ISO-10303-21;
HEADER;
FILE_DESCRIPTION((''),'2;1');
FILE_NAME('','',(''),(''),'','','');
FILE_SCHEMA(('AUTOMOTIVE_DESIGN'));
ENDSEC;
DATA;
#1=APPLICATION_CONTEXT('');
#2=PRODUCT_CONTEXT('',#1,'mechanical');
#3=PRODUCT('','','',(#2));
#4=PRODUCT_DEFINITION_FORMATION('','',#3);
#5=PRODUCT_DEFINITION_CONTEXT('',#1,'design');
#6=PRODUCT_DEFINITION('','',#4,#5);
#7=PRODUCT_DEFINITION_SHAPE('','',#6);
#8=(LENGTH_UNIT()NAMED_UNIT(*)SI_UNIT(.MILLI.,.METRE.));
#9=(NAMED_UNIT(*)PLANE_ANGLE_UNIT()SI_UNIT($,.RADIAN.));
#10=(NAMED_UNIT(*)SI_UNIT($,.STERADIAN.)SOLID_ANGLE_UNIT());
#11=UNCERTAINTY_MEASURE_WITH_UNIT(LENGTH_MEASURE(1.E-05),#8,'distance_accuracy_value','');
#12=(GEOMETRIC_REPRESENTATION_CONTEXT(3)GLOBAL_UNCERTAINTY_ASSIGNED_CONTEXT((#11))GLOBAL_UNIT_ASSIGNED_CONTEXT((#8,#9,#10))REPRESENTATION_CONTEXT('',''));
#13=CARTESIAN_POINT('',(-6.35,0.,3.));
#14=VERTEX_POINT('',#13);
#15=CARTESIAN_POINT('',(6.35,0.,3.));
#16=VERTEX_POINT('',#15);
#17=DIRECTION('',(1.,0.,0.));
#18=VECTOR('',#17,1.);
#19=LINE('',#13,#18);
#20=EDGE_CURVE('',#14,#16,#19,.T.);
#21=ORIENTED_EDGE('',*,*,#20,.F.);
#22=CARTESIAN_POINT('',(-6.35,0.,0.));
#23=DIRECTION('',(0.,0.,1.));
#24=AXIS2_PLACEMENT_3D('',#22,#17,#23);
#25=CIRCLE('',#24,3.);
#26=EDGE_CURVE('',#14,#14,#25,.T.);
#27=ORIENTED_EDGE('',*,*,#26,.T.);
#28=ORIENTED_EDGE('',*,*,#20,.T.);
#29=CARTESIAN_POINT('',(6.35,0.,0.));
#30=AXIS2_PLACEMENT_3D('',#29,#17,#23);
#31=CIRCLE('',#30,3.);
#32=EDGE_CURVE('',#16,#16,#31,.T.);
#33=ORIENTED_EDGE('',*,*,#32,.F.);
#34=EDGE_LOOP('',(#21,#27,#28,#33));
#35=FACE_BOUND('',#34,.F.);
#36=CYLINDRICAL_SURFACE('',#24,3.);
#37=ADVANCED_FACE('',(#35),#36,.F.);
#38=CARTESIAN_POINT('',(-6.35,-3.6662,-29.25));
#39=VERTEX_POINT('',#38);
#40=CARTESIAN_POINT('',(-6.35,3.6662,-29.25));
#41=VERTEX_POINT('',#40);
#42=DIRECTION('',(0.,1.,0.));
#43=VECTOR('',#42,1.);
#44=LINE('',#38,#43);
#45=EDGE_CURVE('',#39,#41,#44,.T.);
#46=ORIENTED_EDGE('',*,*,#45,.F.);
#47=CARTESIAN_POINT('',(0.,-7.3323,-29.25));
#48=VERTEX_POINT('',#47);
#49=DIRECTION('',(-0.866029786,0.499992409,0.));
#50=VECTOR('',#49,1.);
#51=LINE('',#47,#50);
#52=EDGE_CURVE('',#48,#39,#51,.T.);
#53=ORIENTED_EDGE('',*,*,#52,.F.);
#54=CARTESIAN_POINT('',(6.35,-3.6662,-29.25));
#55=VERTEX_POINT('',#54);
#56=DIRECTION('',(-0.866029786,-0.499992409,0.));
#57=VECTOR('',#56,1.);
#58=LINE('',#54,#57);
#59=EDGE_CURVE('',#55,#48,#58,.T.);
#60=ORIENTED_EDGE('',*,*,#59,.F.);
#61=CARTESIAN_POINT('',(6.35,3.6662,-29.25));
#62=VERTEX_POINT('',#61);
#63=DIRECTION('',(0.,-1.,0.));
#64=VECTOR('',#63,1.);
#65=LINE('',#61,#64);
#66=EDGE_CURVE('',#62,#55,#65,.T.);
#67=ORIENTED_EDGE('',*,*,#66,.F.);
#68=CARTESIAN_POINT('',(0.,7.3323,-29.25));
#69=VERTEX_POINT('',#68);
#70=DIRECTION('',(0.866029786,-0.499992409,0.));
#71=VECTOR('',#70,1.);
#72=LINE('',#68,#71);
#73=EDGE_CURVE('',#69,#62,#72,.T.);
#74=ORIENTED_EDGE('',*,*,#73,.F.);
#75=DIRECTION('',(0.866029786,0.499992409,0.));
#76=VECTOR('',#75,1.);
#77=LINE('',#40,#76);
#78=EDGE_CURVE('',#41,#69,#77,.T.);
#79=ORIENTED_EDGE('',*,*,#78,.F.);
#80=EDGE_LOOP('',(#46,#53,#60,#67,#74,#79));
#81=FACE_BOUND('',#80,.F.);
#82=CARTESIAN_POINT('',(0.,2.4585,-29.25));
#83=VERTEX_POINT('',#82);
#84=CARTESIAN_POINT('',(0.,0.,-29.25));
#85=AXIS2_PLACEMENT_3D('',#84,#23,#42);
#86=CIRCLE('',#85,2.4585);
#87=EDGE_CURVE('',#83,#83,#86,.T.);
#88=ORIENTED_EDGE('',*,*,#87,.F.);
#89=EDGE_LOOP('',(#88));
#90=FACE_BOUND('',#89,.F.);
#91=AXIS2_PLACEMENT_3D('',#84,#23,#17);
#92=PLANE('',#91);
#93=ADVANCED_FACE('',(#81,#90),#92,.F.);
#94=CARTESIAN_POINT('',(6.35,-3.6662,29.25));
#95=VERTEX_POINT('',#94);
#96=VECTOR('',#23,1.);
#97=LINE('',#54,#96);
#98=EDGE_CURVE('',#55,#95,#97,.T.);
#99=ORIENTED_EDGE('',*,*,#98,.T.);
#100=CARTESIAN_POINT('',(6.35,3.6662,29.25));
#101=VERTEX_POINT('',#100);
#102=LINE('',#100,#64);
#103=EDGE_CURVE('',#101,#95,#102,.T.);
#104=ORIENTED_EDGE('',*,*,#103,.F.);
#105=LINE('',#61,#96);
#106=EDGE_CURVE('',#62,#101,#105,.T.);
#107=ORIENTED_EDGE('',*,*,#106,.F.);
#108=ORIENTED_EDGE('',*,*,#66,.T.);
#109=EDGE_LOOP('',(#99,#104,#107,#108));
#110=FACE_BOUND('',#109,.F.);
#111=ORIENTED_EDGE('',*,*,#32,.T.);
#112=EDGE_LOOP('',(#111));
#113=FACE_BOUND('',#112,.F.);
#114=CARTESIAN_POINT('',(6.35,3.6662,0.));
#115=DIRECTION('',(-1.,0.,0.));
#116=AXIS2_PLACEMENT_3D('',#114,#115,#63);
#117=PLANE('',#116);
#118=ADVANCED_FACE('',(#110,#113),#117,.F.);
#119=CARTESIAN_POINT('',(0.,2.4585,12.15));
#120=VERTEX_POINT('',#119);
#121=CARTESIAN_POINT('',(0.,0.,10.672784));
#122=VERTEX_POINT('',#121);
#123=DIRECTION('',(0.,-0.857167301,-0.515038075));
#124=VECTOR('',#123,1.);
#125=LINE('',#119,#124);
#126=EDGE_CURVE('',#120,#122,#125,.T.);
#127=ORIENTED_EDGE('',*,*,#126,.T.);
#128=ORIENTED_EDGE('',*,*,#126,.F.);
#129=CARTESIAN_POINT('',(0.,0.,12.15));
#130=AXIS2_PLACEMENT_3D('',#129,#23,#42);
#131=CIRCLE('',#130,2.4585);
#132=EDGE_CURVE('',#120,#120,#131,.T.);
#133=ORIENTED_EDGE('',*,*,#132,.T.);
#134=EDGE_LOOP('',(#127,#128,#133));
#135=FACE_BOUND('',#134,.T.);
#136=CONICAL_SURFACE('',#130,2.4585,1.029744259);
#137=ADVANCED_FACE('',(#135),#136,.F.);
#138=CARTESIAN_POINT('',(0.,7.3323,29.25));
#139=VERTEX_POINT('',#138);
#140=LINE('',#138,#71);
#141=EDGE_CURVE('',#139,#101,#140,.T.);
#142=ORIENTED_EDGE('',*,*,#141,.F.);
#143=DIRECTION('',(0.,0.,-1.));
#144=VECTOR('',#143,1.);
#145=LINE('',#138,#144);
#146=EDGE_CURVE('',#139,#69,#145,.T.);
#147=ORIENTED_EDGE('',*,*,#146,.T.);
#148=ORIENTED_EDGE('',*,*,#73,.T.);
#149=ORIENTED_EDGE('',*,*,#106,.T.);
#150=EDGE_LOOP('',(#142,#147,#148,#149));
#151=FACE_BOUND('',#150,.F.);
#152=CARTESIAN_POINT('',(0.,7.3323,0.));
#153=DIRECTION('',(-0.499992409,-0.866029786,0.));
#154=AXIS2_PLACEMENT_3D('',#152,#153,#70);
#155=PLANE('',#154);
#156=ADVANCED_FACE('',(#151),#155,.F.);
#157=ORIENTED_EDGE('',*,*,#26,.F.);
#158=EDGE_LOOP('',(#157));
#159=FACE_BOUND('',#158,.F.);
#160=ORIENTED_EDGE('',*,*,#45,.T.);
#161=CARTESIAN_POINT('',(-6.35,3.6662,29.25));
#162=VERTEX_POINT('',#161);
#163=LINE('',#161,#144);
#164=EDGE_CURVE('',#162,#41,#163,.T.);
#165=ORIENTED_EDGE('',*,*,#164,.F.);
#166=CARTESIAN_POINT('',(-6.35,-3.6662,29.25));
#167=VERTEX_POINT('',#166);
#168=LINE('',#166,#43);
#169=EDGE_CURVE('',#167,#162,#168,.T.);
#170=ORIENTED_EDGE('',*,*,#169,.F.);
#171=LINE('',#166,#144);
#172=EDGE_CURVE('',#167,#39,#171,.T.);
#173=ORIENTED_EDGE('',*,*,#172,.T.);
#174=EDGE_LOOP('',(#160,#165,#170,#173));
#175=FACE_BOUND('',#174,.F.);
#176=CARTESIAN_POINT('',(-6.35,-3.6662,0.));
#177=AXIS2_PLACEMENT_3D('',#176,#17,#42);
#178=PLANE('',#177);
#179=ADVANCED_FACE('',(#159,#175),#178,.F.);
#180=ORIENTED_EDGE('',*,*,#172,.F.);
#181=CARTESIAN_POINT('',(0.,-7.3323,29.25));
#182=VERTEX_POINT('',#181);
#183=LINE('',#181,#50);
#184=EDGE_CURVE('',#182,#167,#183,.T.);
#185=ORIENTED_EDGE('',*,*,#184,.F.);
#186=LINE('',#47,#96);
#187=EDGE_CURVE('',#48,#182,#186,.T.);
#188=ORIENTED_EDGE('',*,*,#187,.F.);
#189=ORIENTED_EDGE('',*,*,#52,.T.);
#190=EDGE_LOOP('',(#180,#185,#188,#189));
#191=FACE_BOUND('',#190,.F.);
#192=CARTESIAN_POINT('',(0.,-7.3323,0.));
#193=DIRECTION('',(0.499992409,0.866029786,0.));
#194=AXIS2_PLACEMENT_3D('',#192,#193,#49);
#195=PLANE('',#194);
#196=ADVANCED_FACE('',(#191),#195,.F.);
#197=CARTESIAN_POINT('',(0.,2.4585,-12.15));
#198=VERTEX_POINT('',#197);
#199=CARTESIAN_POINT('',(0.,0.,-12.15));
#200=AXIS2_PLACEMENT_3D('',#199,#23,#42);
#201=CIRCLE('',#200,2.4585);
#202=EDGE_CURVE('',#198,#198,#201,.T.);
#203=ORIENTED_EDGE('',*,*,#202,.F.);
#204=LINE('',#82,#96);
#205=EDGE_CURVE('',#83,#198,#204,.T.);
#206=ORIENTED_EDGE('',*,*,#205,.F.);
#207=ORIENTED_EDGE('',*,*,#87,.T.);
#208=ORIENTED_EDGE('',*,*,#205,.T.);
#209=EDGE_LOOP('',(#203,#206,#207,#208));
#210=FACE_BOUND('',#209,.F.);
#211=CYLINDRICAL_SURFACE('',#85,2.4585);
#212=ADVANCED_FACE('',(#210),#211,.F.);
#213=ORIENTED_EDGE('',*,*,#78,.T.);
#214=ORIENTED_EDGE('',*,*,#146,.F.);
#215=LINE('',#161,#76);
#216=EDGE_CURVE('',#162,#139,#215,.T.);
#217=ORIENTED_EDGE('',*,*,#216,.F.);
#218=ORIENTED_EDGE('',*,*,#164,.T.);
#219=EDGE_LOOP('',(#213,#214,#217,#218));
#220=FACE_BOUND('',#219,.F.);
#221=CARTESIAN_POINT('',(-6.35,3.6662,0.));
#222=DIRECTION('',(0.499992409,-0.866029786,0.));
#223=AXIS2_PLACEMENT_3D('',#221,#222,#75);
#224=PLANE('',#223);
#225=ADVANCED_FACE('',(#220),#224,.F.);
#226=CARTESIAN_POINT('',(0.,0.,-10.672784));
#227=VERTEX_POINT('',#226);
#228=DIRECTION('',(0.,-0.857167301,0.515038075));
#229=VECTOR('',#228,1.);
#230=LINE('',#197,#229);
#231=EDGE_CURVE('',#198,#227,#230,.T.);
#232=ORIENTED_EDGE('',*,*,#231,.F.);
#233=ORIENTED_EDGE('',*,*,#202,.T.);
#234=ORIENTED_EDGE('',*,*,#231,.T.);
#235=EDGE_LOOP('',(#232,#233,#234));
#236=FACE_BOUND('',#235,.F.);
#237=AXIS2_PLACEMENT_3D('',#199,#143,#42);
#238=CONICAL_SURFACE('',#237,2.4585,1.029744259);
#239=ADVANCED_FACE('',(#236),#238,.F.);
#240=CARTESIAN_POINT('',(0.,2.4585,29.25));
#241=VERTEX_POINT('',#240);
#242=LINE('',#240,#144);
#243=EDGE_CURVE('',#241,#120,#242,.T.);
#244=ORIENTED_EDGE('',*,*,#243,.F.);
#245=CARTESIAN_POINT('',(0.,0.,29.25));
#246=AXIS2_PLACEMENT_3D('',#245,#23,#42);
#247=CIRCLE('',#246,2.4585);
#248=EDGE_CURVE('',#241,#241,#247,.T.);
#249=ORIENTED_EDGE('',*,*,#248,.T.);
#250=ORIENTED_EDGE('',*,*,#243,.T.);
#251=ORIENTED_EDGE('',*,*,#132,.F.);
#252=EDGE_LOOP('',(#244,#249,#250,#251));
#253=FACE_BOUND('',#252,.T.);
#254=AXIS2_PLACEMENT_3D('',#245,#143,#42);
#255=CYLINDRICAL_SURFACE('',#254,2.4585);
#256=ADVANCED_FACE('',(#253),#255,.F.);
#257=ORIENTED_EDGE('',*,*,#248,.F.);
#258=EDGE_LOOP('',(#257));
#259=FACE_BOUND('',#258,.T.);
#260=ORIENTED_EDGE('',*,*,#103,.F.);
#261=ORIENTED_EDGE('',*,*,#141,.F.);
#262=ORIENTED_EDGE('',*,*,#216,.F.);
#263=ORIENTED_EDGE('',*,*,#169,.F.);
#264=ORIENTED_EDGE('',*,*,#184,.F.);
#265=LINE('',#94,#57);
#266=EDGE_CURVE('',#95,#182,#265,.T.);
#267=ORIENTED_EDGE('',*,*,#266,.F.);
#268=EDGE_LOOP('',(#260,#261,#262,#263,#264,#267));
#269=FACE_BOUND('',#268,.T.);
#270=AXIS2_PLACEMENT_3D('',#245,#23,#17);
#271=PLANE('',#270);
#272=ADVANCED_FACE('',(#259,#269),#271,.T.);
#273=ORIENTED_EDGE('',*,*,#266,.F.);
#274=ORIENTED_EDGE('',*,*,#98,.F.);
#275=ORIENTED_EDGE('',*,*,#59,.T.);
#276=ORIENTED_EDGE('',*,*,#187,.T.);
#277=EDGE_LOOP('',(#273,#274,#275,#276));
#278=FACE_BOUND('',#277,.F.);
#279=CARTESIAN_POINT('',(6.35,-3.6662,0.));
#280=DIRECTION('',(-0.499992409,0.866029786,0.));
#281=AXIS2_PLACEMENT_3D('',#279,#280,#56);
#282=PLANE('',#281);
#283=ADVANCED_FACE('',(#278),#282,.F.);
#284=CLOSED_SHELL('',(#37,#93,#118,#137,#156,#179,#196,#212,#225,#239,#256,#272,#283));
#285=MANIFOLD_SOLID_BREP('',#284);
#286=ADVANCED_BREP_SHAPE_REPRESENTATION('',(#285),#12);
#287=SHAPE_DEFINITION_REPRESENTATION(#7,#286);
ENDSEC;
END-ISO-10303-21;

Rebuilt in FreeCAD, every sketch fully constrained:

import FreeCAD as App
import Part
import Sketcher
from FreeCAD import Vector
Q = App.Units.Quantity


def add_polygon(sketch, points):
    """Adds a closed chain of lines whose ends are joined by coincident constraints."""
    first, n = sketch.GeometryCount, len(points)
    for a, b in zip(points, points[1:] + points[:1]):
        sketch.addGeometry(Part.LineSegment(App.Vector(*a, 0), App.Vector(*b, 0)), False)
    for i in range(n):
        sketch.addConstraint(Sketcher.Constraint("Coincident", first + i, 2, first + (i + 1) % n, 1))

doc = App.newDocument("Part")
body = doc.addObject("PartDesign::Body", "Body")

# Sketch on XY plane
sketch1 = body.newObject("Sketcher::SketchObject", "Sketch")
sketch1.AttachmentSupport = (doc.getObject("XY_Plane"), [""])
sketch1.MapMode = "FlatFace"
add_polygon(sketch1, [(-6, -4), (0, -7), (6, -4), (6, 4), (0, 7), (-6, 4)])  # lines 0-5
sketch1.addConstraint([
    Sketcher.Constraint("Vertical", 2),
    Sketcher.Constraint("Vertical", 5),
    Sketcher.Constraint("Symmetric", 0, 2, 3, 2, -1, 1),
    Sketcher.Constraint("Symmetric", 1, 2, 4, 2, -1, 1),
    Sketcher.Constraint("PointOnObject", 0, 2, -2),
    Sketcher.Constraint("Parallel", 0, 3),
    Sketcher.Constraint("Horizontal", 2, 2, 4, 2),
    Sketcher.Constraint("DistanceX", 4, 2, 2, 2, 12.7),
    Sketcher.Constraint("Angle", 0, Q("-29.9995 deg")),
    Sketcher.Constraint("DistanceY", 2, 1, 2, 2, 7.3324),
])
pad1 = body.newObject("PartDesign::Pad", "Pad")
pad1.Profile = sketch1
pad1.Length = 58.5
pad1.Midplane = True

# Sketch on YZ plane
sketch2 = body.newObject("Sketcher::SketchObject", "Sketch001")
sketch2.AttachmentSupport = (doc.getObject("YZ_Plane"), [""])
sketch2.MapMode = "FlatFace"
sketch2.AttachmentOffset = App.Placement(Vector(0, 0, -6.35), App.Rotation())
sketch2.addGeometry(Part.Circle(Vector(0, 0, 0), Vector(0, 0, 1), 3), False)
sketch2.addConstraint([
    Sketcher.Constraint("Coincident", 0, 3, -1, 1),
    Sketcher.Constraint("Diameter", 0, 6.0),
])
doc.recompute()
hole = body.newObject("PartDesign::Hole", "Hole")
hole.Profile = sketch2
hole.ThreadType = "None"
hole.Diameter = 6
hole.DepthType = "ThroughAll"
hole.Reversed = True

# Sketch on XY plane
sketch3 = body.newObject("Sketcher::SketchObject", "Sketch002")
sketch3.AttachmentSupport = (doc.getObject("XY_Plane"), [""])
sketch3.MapMode = "FlatFace"
sketch3.AttachmentOffset = App.Placement(Vector(0, 0, -29.25), App.Rotation())
sketch3.addGeometry(Part.Circle(Vector(0, 0, 0), Vector(0, 0, 1), 2.5), False)
sketch3.addConstraint([
    Sketcher.Constraint("Coincident", 0, 3, -1, 1),
    Sketcher.Constraint("Diameter", 0, 4.917),
])
doc.recompute()
hole2 = body.newObject("PartDesign::Hole", "Hole001")
hole2.Profile = sketch3
hole2.ThreadType = "None"
hole2.Diameter = 4.917
hole2.DepthType = "Dimension"
hole2.Depth = 17.1
hole2.DrillPoint = "Angled"
hole2.DrillPointAngle = 118
hole2.Reversed = True
doc.recompute()

mirrored = body.newObject("PartDesign::Mirrored", "Mirrored")
mirrored.Originals = [hole2]
mirrored.MirrorPlane = (doc.getObject("XY_Plane"), [""])
body.Tip = mirrored

doc.recompute()
